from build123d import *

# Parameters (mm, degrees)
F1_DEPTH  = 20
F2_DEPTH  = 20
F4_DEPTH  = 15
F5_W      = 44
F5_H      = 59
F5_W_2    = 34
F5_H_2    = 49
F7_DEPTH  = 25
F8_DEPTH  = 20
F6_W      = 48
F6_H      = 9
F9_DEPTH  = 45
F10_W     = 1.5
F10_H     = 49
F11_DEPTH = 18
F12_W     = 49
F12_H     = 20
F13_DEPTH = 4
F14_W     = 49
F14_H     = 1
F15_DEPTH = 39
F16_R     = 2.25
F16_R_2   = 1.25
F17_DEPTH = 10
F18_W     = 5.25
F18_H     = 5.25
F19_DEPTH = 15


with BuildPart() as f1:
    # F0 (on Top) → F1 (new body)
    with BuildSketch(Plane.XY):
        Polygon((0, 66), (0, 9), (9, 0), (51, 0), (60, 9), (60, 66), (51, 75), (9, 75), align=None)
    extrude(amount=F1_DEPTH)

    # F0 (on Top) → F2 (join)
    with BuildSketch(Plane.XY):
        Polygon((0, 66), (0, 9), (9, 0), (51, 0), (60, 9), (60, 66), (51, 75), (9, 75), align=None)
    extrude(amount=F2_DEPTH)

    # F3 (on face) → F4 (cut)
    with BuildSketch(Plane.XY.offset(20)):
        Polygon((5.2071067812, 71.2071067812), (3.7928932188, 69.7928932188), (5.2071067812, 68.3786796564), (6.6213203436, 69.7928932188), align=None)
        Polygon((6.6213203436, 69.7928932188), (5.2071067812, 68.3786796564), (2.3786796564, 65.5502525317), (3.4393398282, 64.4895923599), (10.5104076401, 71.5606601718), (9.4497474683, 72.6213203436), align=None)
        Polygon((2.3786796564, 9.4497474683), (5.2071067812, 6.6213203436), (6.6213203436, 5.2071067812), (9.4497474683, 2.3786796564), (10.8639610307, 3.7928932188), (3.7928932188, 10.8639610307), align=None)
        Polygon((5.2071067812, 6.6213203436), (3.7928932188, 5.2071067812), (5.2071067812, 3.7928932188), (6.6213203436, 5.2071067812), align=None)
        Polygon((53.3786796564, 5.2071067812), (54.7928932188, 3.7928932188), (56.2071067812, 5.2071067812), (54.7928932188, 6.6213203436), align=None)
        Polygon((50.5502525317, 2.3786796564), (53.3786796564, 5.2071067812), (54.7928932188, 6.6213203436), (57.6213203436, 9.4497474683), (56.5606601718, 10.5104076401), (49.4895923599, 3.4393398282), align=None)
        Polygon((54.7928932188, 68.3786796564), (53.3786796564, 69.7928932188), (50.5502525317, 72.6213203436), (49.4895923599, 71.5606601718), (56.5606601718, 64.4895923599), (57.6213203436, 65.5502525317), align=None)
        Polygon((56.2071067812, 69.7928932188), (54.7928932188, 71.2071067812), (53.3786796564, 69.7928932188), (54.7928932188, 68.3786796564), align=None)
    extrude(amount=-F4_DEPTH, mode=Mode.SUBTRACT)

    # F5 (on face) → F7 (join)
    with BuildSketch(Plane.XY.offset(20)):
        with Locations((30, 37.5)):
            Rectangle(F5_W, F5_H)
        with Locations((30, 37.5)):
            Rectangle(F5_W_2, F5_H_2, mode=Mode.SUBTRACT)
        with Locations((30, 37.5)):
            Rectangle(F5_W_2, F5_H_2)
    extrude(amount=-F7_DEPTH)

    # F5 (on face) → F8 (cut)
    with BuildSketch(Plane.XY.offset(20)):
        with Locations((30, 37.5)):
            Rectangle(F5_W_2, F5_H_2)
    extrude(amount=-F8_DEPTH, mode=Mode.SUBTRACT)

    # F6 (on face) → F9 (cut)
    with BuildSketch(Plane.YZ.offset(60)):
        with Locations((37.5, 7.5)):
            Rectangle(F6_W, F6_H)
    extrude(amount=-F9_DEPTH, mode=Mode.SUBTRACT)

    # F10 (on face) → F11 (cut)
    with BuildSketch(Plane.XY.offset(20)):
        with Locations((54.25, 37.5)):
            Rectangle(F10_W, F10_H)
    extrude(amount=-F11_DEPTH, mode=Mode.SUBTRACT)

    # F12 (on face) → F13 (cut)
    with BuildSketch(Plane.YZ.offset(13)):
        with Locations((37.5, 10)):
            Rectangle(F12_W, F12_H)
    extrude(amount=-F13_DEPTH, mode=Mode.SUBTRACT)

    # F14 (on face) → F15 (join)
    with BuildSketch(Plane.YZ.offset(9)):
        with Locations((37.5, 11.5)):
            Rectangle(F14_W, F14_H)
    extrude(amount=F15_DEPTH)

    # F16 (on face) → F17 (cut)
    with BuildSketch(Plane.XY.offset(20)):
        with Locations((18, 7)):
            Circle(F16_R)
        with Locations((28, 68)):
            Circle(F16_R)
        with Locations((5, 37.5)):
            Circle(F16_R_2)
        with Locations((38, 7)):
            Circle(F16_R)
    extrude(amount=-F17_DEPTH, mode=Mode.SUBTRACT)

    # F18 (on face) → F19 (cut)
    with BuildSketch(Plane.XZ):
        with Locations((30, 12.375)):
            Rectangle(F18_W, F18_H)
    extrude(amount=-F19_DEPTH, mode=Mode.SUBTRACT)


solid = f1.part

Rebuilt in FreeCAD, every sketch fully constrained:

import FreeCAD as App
import Part
import Sketcher
Q = App.Units.Quantity

doc = App.newDocument("Part")
params = doc.addObject("Spreadsheet::Sheet", "Params")
for row, (alias, value) in enumerate([
    ("sketch1_width", "42 mm"),
    ("sketch1_height", "57 mm"),
    ("pad1_length", "20 mm"),
    ("sketch2_width", "42 mm"),
    ("sketch2_height", "57 mm"),
    ("pad2_length", "20 mm"),
    ("sketch3_length", "2 mm"),
    ("sketch3_length2", "1.5 mm"),
    ("pocket1_length", "15 mm"),
    ("sketch4_width", "44 mm"),
    ("sketch4_height", "59 mm"),
    ("pad3_length", "25 mm"),
    ("sketch5_width", "34 mm"),
    ("sketch5_height", "49 mm"),
    ("pocket2_length", "20 mm"),
    ("sketch6_width", "48 mm"),
    ("sketch6_height", "9 mm"),
    ("pocket3_length", "45 mm"),
    ("sketch7_height", "49 mm"),
    ("sketch7_width", "1.5 mm"),
    ("pocket4_length", "18 mm"),
    ("sketch8_width", "49 mm"),
    ("sketch8_height", "20 mm"),
    ("pocket5_length", "4 mm"),
    ("sketch9_width", "49 mm"),
    ("sketch9_height", "1 mm"),
    ("pad4_length", "39 mm"),
    ("sketch10_diameter", "4.5 mm"),
    ("sketch10_diameter2", "2.5 mm"),
    ("pocket6_length", "10 mm"),
    ("sketch11_width", "5.25 mm"),
    ("pocket7_length", "15 mm"),
], start=1):
    params.set(f"A{row}", alias)
    params.set(f"B{row}", "=" + value)
    params.setAlias(f"B{row}", alias)

body = doc.addObject("PartDesign::Body", "Body")

# Sketch on XY plane
sketch1 = doc.addObject("Sketcher::SketchObject", "Sketch")
body.addObject(sketch1)
sketch1.AttachmentSupport = (doc.XY_Plane, [""])
sketch1.MapMode = "FlatFace"
sketch1.addGeometry(Part.LineSegment(App.Vector(0, 66, 0), App.Vector(0, 9, 0)), False)
sketch1.addGeometry(Part.LineSegment(App.Vector(0, 9, 0), App.Vector(9, 0, 0)), False)
sketch1.addGeometry(Part.LineSegment(App.Vector(9, 0, 0), App.Vector(51, 0, 0)), False)
sketch1.addGeometry(Part.LineSegment(App.Vector(51, 0, 0), App.Vector(60, 9, 0)), False)
sketch1.addGeometry(Part.LineSegment(App.Vector(60, 9, 0), App.Vector(60, 66, 0)), False)
sketch1.addGeometry(Part.LineSegment(App.Vector(60, 66, 0), App.Vector(51, 75, 0)), False)
sketch1.addGeometry(Part.LineSegment(App.Vector(51, 75, 0), App.Vector(9, 75, 0)), False)
sketch1.addGeometry(Part.LineSegment(App.Vector(9, 75, 0), App.Vector(0, 66, 0)), False)
sketch1.addConstraint(Sketcher.Constraint("Coincident", 0, 2, 1, 1))
sketch1.addConstraint(Sketcher.Constraint("Coincident", 1, 2, 2, 1))
sketch1.addConstraint(Sketcher.Constraint("Coincident", 2, 2, 3, 1))
sketch1.addConstraint(Sketcher.Constraint("Coincident", 3, 2, 4, 1))
sketch1.addConstraint(Sketcher.Constraint("Coincident", 4, 2, 5, 1))
sketch1.addConstraint(Sketcher.Constraint("Coincident", 5, 2, 6, 1))
sketch1.addConstraint(Sketcher.Constraint("Coincident", 6, 2, 7, 1))
sketch1.addConstraint(Sketcher.Constraint("Coincident", 7, 2, 0, 1))
sketch1.addConstraint(Sketcher.Constraint("Vertical", 0))
sketch1.addConstraint(Sketcher.Constraint("Horizontal", 2))
sketch1.addConstraint(Sketcher.Constraint("Vertical", 4))
sketch1.addConstraint(Sketcher.Constraint("Horizontal", 6))
sketch1.addConstraint(Sketcher.Constraint("PointOnObject", 0, 2, -2))
sketch1.addConstraint(Sketcher.Constraint("PointOnObject", 1, 2, -1))
sketch1.addConstraint(Sketcher.Constraint("Perpendicular", 1, 3))
sketch1.addConstraint(Sketcher.Constraint("Perpendicular", 3, 5))
sketch1.addConstraint(Sketcher.Constraint("Perpendicular", 5, 7))
sketch1.addConstraint(Sketcher.Constraint("Horizontal", 0, 2, 3, 2))
sketch1.addConstraint(Sketcher.Constraint("Horizontal", 4, 2, 7, 2))
sketch1.addConstraint(Sketcher.Constraint("Vertical", 2, 2, 5, 2))
sketch1.addConstraint(Sketcher.Constraint("Vertical", 1, 2, 6, 2))
sketch1.addConstraint(Sketcher.Constraint("DistanceX", 2, 1, 2, 2, Q("42 mm")))
sketch1.addConstraint(Sketcher.Constraint("DistanceY", 0, 2, 0, 1, Q("57 mm")))
sketch1.addConstraint(Sketcher.Constraint("DistanceY", -1, 1, 0, 2, Q("9 mm")))
sketch1.setExpression("Constraints[21]", "Params.sketch1_width")
sketch1.setExpression("Constraints[22]", "Params.sketch1_height")
pad1 = doc.addObject("PartDesign::Pad", "Pad")
body.addObject(pad1)
pad1.Profile = sketch1
pad1.setExpression("Length", "Params.pad1_length")

# Sketch on XY plane
sketch2 = doc.addObject("Sketcher::SketchObject", "Sketch001")
body.addObject(sketch2)
sketch2.AttachmentSupport = (doc.XY_Plane, [""])
sketch2.MapMode = "FlatFace"
sketch2.addGeometry(Part.LineSegment(App.Vector(0, 66, 0), App.Vector(0, 9, 0)), False)
sketch2.addGeometry(Part.LineSegment(App.Vector(0, 9, 0), App.Vector(9, 0, 0)), False)
sketch2.addGeometry(Part.LineSegment(App.Vector(9, 0, 0), App.Vector(51, 0, 0)), False)
sketch2.addGeometry(Part.LineSegment(App.Vector(51, 0, 0), App.Vector(60, 9, 0)), False)
sketch2.addGeometry(Part.LineSegment(App.Vector(60, 9, 0), App.Vector(60, 66, 0)), False)
sketch2.addGeometry(Part.LineSegment(App.Vector(60, 66, 0), App.Vector(51, 75, 0)), False)
sketch2.addGeometry(Part.LineSegment(App.Vector(51, 75, 0), App.Vector(9, 75, 0)), False)
sketch2.addGeometry(Part.LineSegment(App.Vector(9, 75, 0), App.Vector(0, 66, 0)), False)
sketch2.addConstraint(Sketcher.Constraint("Coincident", 0, 2, 1, 1))
sketch2.addConstraint(Sketcher.Constraint("Coincident", 1, 2, 2, 1))
sketch2.addConstraint(Sketcher.Constraint("Coincident", 2, 2, 3, 1))
sketch2.addConstraint(Sketcher.Constraint("Coincident", 3, 2, 4, 1))
sketch2.addConstraint(Sketcher.Constraint("Coincident", 4, 2, 5, 1))
sketch2.addConstraint(Sketcher.Constraint("Coincident", 5, 2, 6, 1))
sketch2.addConstraint(Sketcher.Constraint("Coincident", 6, 2, 7, 1))
sketch2.addConstraint(Sketcher.Constraint("Coincident", 7, 2, 0, 1))
sketch2.addConstraint(Sketcher.Constraint("Vertical", 0))
sketch2.addConstraint(Sketcher.Constraint("Horizontal", 2))
sketch2.addConstraint(Sketcher.Constraint("Vertical", 4))
sketch2.addConstraint(Sketcher.Constraint("Horizontal", 6))
sketch2.addConstraint(Sketcher.Constraint("PointOnObject", 0, 2, -2))
sketch2.addConstraint(Sketcher.Constraint("PointOnObject", 1, 2, -1))
sketch2.addConstraint(Sketcher.Constraint("Perpendicular", 1, 3))
sketch2.addConstraint(Sketcher.Constraint("Perpendicular", 3, 5))
sketch2.addConstraint(Sketcher.Constraint("Perpendicular", 5, 7))
sketch2.addConstraint(Sketcher.Constraint("Horizontal", 0, 2, 3, 2))
sketch2.addConstraint(Sketcher.Constraint("Horizontal", 4, 2, 7, 2))
sketch2.addConstraint(Sketcher.Constraint("Vertical", 2, 2, 5, 2))
sketch2.addConstraint(Sketcher.Constraint("Vertical", 1, 2, 6, 2))
sketch2.addConstraint(Sketcher.Constraint("DistanceX", 2, 1, 2, 2, Q("42 mm")))
sketch2.addConstraint(Sketcher.Constraint("DistanceY", 0, 2, 0, 1, Q("57 mm")))
sketch2.addConstraint(Sketcher.Constraint("DistanceY", -1, 1, 0, 2, Q("9 mm")))
sketch2.setExpression("Constraints[21]", "Params.sketch2_width")
sketch2.setExpression("Constraints[22]", "Params.sketch2_height")
pad2 = doc.addObject("PartDesign::Pad", "Pad001")
body.addObject(pad2)
pad2.Profile = sketch2
pad2.setExpression("Length", "Params.pad2_length")

# Sketch on XY plane
sketch3 = doc.addObject("Sketcher::SketchObject", "Sketch002")
body.addObject(sketch3)
sketch3.AttachmentSupport = (doc.XY_Plane, [""])
sketch3.MapMode = "FlatFace"
sketch3.AttachmentOffset = App.Placement(App.Vector(0, 0, 20), App.Rotation())
sketch3.addGeometry(Part.LineSegment(App.Vector(5.2, 71.2, 0), App.Vector(3.8, 69.8, 0)), False)
sketch3.addGeometry(Part.LineSegment(App.Vector(3.8, 69.8, 0), App.Vector(5.2, 68.4, 0)), False)
sketch3.addGeometry(Part.LineSegment(App.Vector(5.2, 68.4, 0), App.Vector(2.4, 65.6, 0)), False)
sketch3.addGeometry(Part.LineSegment(App.Vector(2.4, 65.6, 0), App.Vector(3.4, 64.5, 0)), False)
sketch3.addGeometry(Part.LineSegment(App.Vector(3.4, 64.5, 0), App.Vector(10.5, 71.6, 0)), False)
sketch3.addGeometry(Part.LineSegment(App.Vector(10.5, 71.6, 0), App.Vector(9.4, 72.6, 0)), False)
sketch3.addGeometry(Part.LineSegment(App.Vector(9.4, 72.6, 0), App.Vector(6.6, 69.8, 0)), False)
sketch3.addGeometry(Part.LineSegment(App.Vector(6.6, 69.8, 0), App.Vector(5.2, 71.2, 0)), False)
sketch3.addGeometry(Part.LineSegment(App.Vector(2.4, 9.4, 0), App.Vector(5.2, 6.6, 0)), False)
sketch3.addGeometry(Part.LineSegment(App.Vector(5.2, 6.6, 0), App.Vector(3.8, 5.2, 0)), False)
sketch3.addGeometry(Part.LineSegment(App.Vector(3.8, 5.2, 0), App.Vector(5.2, 3.8, 0)), False)
sketch3.addGeometry(Part.LineSegment(App.Vector(5.2, 3.8, 0), App.Vector(6.6, 5.2, 0)), False)
sketch3.addGeometry(Part.LineSegment(App.Vector(6.6, 5.2, 0), App.Vector(9.4, 2.4, 0)), False)
sketch3.addGeometry(Part.LineSegment(App.Vector(9.4, 2.4, 0), App.Vector(10.9, 3.8, 0)), False)
sketch3.addGeometry(Part.LineSegment(App.Vector(10.9, 3.8, 0), App.Vector(3.8, 10.9, 0)), False)
sketch3.addGeometry(Part.LineSegment(App.Vector(3.8, 10.9, 0), App.Vector(2.4, 9.4, 0)), False)
sketch3.addGeometry(Part.LineSegment(App.Vector(53.4, 5.2, 0), App.Vector(54.8, 3.8, 0)), False)
sketch3.addGeometry(Part.LineSegment(App.Vector(54.8, 3.8, 0), App.Vector(56.2, 5.2, 0)), False)
sketch3.addGeometry(Part.LineSegment(App.Vector(56.2, 5.2, 0), App.Vector(54.8, 6.6, 0)), False)
sketch3.addGeometry(Part.LineSegment(App.Vector(54.8, 6.6, 0), App.Vector(57.6, 9.4, 0)), False)
sketch3.addGeometry(Part.LineSegment(App.Vector(57.6, 9.4, 0), App.Vector(56.6, 10.5, 0)), False)
sketch3.addGeometry(Part.LineSegment(App.Vector(56.6, 10.5, 0), App.Vector(49.5, 3.4, 0)), False)
sketch3.addGeometry(Part.LineSegment(App.Vector(49.5, 3.4, 0), App.Vector(50.6, 2.4, 0)), False)
sketch3.addGeometry(Part.LineSegment(App.Vector(50.6, 2.4, 0), App.Vector(53.4, 5.2, 0)), False)
sketch3.addGeometry(Part.LineSegment(App.Vector(53.4, 69.8, 0), App.Vector(50.6, 72.6, 0)), False)
sketch3.addGeometry(Part.LineSegment(App.Vector(50.6, 72.6, 0), App.Vector(49.5, 71.6, 0)), False)
sketch3.addGeometry(Part.LineSegment(App.Vector(49.5, 71.6, 0), App.Vector(56.6, 64.5, 0)), False)
sketch3.addGeometry(Part.LineSegment(App.Vector(56.6, 64.5, 0), App.Vector(57.6, 65.6, 0)), False)
sketch3.addGeometry(Part.LineSegment(App.Vector(57.6, 65.6, 0), App.Vector(54.8, 68.4, 0)), False)
sketch3.addGeometry(Part.LineSegment(App.Vector(54.8, 68.4, 0), App.Vector(56.2, 69.8, 0)), False)
sketch3.addGeometry(Part.LineSegment(App.Vector(56.2, 69.8, 0), App.Vector(54.8, 71.2, 0)), False)
sketch3.addGeometry(Part.LineSegment(App.Vector(54.8, 71.2, 0), App.Vector(53.4, 69.8, 0)), False)
sketch3.addConstraint(Sketcher.Constraint("Coincident", 0, 2, 1, 1))
sketch3.addConstraint(Sketcher.Constraint("Coincident", 1, 2, 2, 1))
sketch3.addConstraint(Sketcher.Constraint("Coincident", 2, 2, 3, 1))
sketch3.addConstraint(Sketcher.Constraint("Coincident", 3, 2, 4, 1))
sketch3.addConstraint(Sketcher.Constraint("Coincident", 4, 2, 5, 1))
sketch3.addConstraint(Sketcher.Constraint("Coincident", 5, 2, 6, 1))
sketch3.addConstraint(Sketcher.Constraint("Coincident", 6, 2, 7, 1))
sketch3.addConstraint(Sketcher.Constraint("Coincident", 7, 2, 0, 1))
sketch3.addConstraint(Sketcher.Constraint("Coincident", 8, 2, 9, 1))
sketch3.addConstraint(Sketcher.Constraint("Coincident", 9, 2, 10, 1))
sketch3.addConstraint(Sketcher.Constraint("Coincident", 10, 2, 11, 1))
sketch3.addConstraint(Sketcher.Constraint("Coincident", 11, 2, 12, 1))
sketch3.addConstraint(Sketcher.Constraint("Coincident", 12, 2, 13, 1))
sketch3.addConstraint(Sketcher.Constraint("Coincident", 13, 2, 14, 1))
sketch3.addConstraint(Sketcher.Constraint("Coincident", 14, 2, 15, 1))
sketch3.addConstraint(Sketcher.Constraint("Coincident", 15, 2, 8, 1))
sketch3.addConstraint(Sketcher.Constraint("Coincident", 16, 2, 17, 1))
sketch3.addConstraint(Sketcher.Constraint("Coincident", 17, 2, 18, 1))
sketch3.addConstraint(Sketcher.Constraint("Coincident", 18, 2, 19, 1))
sketch3.addConstraint(Sketcher.Constraint("Coincident", 19, 2, 20, 1))
sketch3.addConstraint(Sketcher.Constraint("Coincident", 20, 2, 21, 1))
sketch3.addConstraint(Sketcher.Constraint("Coincident", 21, 2, 22, 1))
sketch3.addConstraint(Sketcher.Constraint("Coincident", 22, 2, 23, 1))
sketch3.addConstraint(Sketcher.Constraint("Coincident", 23, 2, 16, 1))
sketch3.addConstraint(Sketcher.Constraint("Coincident", 24, 2, 25, 1))
sketch3.addConstraint(Sketcher.Constraint("Coincident", 25, 2, 26, 1))
sketch3.addConstraint(Sketcher.Constraint("Coincident", 26, 2, 27, 1))
sketch3.addConstraint(Sketcher.Constraint("Coincident", 27, 2, 28, 1))
sketch3.addConstraint(Sketcher.Constraint("Coincident", 28, 2, 29, 1))
sketch3.addConstraint(Sketcher.Constraint("Coincident", 29, 2, 30, 1))
sketch3.addConstraint(Sketcher.Constraint("Coincident", 30, 2, 31, 1))
sketch3.addConstraint(Sketcher.Constraint("Coincident", 31, 2, 24, 1))
sketch3.addConstraint(Sketcher.Constraint("Perpendicular", 0, 1))
sketch3.addConstraint(Sketcher.Constraint("Perpendicular", 1, 2))
sketch3.addConstraint(Sketcher.Constraint("Perpendicular", 2, 3))
sketch3.addConstraint(Sketcher.Constraint("Perpendicular", 3, 4))
sketch3.addConstraint(Sketcher.Constraint("Perpendicular", 4, 5))
sketch3.addConstraint(Sketcher.Constraint("Perpendicular", 5, 6))
sketch3.addConstraint(Sketcher.Constraint("Perpendicular", 6, 7))
sketch3.addConstraint(Sketcher.Constraint("Parallel", 7, 8))
sketch3.addConstraint(Sketcher.Constraint("Perpendicular", 8, 9))
sketch3.addConstraint(Sketcher.Constraint("Perpendicular", 9, 10))
sketch3.addConstraint(Sketcher.Constraint("Perpendicular", 10, 11))
sketch3.addConstraint(Sketcher.Constraint("Perpendicular", 11, 12))
sketch3.addConstraint(Sketcher.Constraint("Perpendicular", 12, 13))
sketch3.addConstraint(Sketcher.Constraint("Perpendicular", 13, 14))
sketch3.addConstraint(Sketcher.Constraint("Perpendicular", 14, 15))
sketch3.addConstraint(Sketcher.Constraint("Perpendicular", 15, 16))
sketch3.addConstraint(Sketcher.Constraint("Perpendicular", 16, 17))
sketch3.addConstraint(Sketcher.Constraint("Perpendicular", 17, 18))
sketch3.addConstraint(Sketcher.Constraint("Perpendicular", 18, 19))
sketch3.addConstraint(Sketcher.Constraint("Perpendicular", 19, 20))
sketch3.addConstraint(Sketcher.Constraint("Perpendicular", 20, 21))
sketch3.addConstraint(Sketcher.Constraint("Perpendicular", 21, 22))
sketch3.addConstraint(Sketcher.Constraint("Perpendicular", 22, 23))
sketch3.addConstraint(Sketcher.Constraint("Perpendicular", 23, 24))
sketch3.addConstraint(Sketcher.Constraint("Perpendicular", 24, 25))
sketch3.addConstraint(Sketcher.Constraint("Perpendicular", 25, 26))
sketch3.addConstraint(Sketcher.Constraint("Perpendicular", 26, 27))
sketch3.addConstraint(Sketcher.Constraint("Perpendicular", 27, 28))
sketch3.addConstraint(Sketcher.Constraint("Perpendicular", 28, 29))
sketch3.addConstraint(Sketcher.Constraint("Perpendicular", 29, 30))
sketch3.addConstraint(Sketcher.Constraint("Perpendicular", 30, 31))
sketch3.addConstraint(Sketcher.Constraint("Horizontal", 0, 2, 6, 2))
sketch3.addConstraint(Sketcher.Constraint("Horizontal", 9, 2, 11, 2))
sketch3.addConstraint(Sketcher.Constraint("Horizontal", 10, 2, 13, 2))
sketch3.addConstraint(Sketcher.Constraint("Horizontal", 13, 2, 16, 2))
sketch3.addConstraint(Sketcher.Constraint("Horizontal", 11, 2, 17, 2))
sketch3.addConstraint(Sketcher.Constraint("Horizontal", 8, 2, 18, 2))
sketch3.addConstraint(Sketcher.Constraint("Horizontal", 15, 2, 19, 2))
sketch3.addConstraint(Sketcher.Constraint("Horizontal", 12, 2, 22, 2))
sketch3.addConstraint(Sketcher.Constraint("Horizontal", 17, 2, 23, 2))
sketch3.addConstraint(Sketcher.Constraint("Horizontal", 5, 2, 24, 2))
sketch3.addConstraint(Sketcher.Constraint("Horizontal", 4, 2, 25, 2))
sketch3.addConstraint(Sketcher.Constraint("Horizontal", 3, 2, 26, 2))
sketch3.addConstraint(Sketcher.Constraint("Horizontal", 2, 2, 27, 2))
sketch3.addConstraint(Sketcher.Constraint("Horizontal", 1, 2, 28, 2))
sketch3.addConstraint(Sketcher.Constraint("Horizontal", 6, 2, 29, 2))
sketch3.addConstraint(Sketcher.Constraint("Horizontal", 7, 2, 30, 2))
sketch3.addConstraint(Sketcher.Constraint("Vertical", 1, 2, 7, 2))
sketch3.addConstraint(Sketcher.Constraint("Vertical", 7, 2, 8, 2))
sketch3.addConstraint(Sketcher.Constraint("Vertical", 0, 2, 9, 2))
sketch3.addConstraint(Sketcher.Constraint("Vertical", 8, 2, 10, 2))
sketch3.addConstraint(Sketcher.Constraint("Vertical", 6, 2, 11, 2))
sketch3.addConstraint(Sketcher.Constraint("Vertical", 5, 2, 12, 2))
sketch3.addConstraint(Sketcher.Constraint("Vertical", 9, 2, 14, 2))
sketch3.addConstraint(Sketcher.Constraint("Vertical", 2, 2, 15, 2))
sketch3.addConstraint(Sketcher.Constraint("Vertical", 22, 2, 24, 2))
sketch3.addConstraint(Sketcher.Constraint("Vertical", 21, 2, 25, 2))
sketch3.addConstraint(Sketcher.Constraint("Equal", 11, 13))
sketch3.addConstraint(Sketcher.Constraint("Distance", 0, Q("2 mm")))
sketch3.addConstraint(Sketcher.Constraint("DistanceX", 10, 2, 17, 2, Q("51 mm")))
sketch3.addConstraint(Sketcher.Constraint("Distance", 3, Q("1.5 mm")))
sketch3.addConstraint(Sketcher.Constraint("DistanceY", 10, 2, 3, 2, Q("60.696699 mm")))
sketch3.addConstraint(Sketcher.Constraint("DistanceY", -1, 1, 1, 2, Q("68.37868 mm")))
sketch3.addConstraint(Sketcher.Constraint("DistanceX", -1, 1, 2, 2, Q("2.37868 mm")))
sketch3.setExpression("Constraints[90]", "Params.sketch3_length")
sketch3.setExpression("Constraints[92]", "Params.sketch3_length2")
pocket1 = doc.addObject("PartDesign::Pocket", "Pocket")
body.addObject(pocket1)
pocket1.Profile = sketch3
pocket1.setExpression("Length", "Params.pocket1_length")

# Sketch on XY plane
sketch4 = doc.addObject("Sketcher::SketchObject", "Sketch003")
body.addObject(sketch4)
sketch4.AttachmentSupport = (doc.XY_Plane, [""])
sketch4.MapMode = "FlatFace"
sketch4.AttachmentOffset = App.Placement(App.Vector(0, 0, 20), App.Rotation())
sketch4.addGeometry(Part.LineSegment(App.Vector(8, 67, 0), App.Vector(8, 8, 0)), False)
sketch4.addGeometry(Part.LineSegment(App.Vector(8, 8, 0), App.Vector(52, 8, 0)), False)
sketch4.addGeometry(Part.LineSegment(App.Vector(52, 8, 0), App.Vector(52, 67, 0)), False)
sketch4.addGeometry(Part.LineSegment(App.Vector(52, 67, 0), App.Vector(8, 67, 0)), False)
sketch4.addConstraint(Sketcher.Constraint("Coincident", 0, 2, 1, 1))
sketch4.addConstraint(Sketcher.Constraint("Coincident", 1, 2, 2, 1))
sketch4.addConstraint(Sketcher.Constraint("Coincident", 2, 2, 3, 1))
sketch4.addConstraint(Sketcher.Constraint("Coincident", 3, 2, 0, 1))
sketch4.addConstraint(Sketcher.Constraint("Vertical", 0))
sketch4.addConstraint(Sketcher.Constraint("Horizontal", 1))
sketch4.addConstraint(Sketcher.Constraint("Vertical", 2))
sketch4.addConstraint(Sketcher.Constraint("Horizontal", 3))
sketch4.addConstraint(Sketcher.Constraint("DistanceX", 1, 1, 1, 2, Q("44 mm")))
sketch4.addConstraint(Sketcher.Constraint("DistanceY", 0, 2, 0, 1, Q("59 mm")))
sketch4.addConstraint(Sketcher.Constraint("DistanceX", -1, 1, 0, 2, Q("8 mm")))
sketch4.addConstraint(Sketcher.Constraint("DistanceY", -1, 1, 0, 2, Q("8 mm")))
sketch4.setExpression("Constraints[8]", "Params.sketch4_width")
sketch4.setExpression("Constraints[9]", "Params.sketch4_height")
pad3 = doc.addObject("PartDesign::Pad", "Pad002")
body.addObject(pad3)
pad3.Profile = sketch4
pad3.setExpression("Length", "Params.pad3_length")
pad3.Reversed = True

# Sketch on XY plane
sketch5 = doc.addObject("Sketcher::SketchObject", "Sketch004")
body.addObject(sketch5)
sketch5.AttachmentSupport = (doc.XY_Plane, [""])
sketch5.MapMode = "FlatFace"
sketch5.AttachmentOffset = App.Placement(App.Vector(0, 0, 20), App.Rotation())
sketch5.addGeometry(Part.LineSegment(App.Vector(13, 62, 0), App.Vector(13, 13, 0)), False)
sketch5.addGeometry(Part.LineSegment(App.Vector(13, 13, 0), App.Vector(47, 13, 0)), False)
sketch5.addGeometry(Part.LineSegment(App.Vector(47, 13, 0), App.Vector(47, 62, 0)), False)
sketch5.addGeometry(Part.LineSegment(App.Vector(47, 62, 0), App.Vector(13, 62, 0)), False)
sketch5.addConstraint(Sketcher.Constraint("Coincident", 0, 2, 1, 1))
sketch5.addConstraint(Sketcher.Constraint("Coincident", 1, 2, 2, 1))
sketch5.addConstraint(Sketcher.Constraint("Coincident", 2, 2, 3, 1))
sketch5.addConstraint(Sketcher.Constraint("Coincident", 3, 2, 0, 1))
sketch5.addConstraint(Sketcher.Constraint("Vertical", 0))
sketch5.addConstraint(Sketcher.Constraint("Horizontal", 1))
sketch5.addConstraint(Sketcher.Constraint("Vertical", 2))
sketch5.addConstraint(Sketcher.Constraint("Horizontal", 3))
sketch5.addConstraint(Sketcher.Constraint("DistanceX", 1, 1, 1, 2, Q("34 mm")))
sketch5.addConstraint(Sketcher.Constraint("DistanceY", 0, 2, 0, 1, Q("49 mm")))
sketch5.addConstraint(Sketcher.Constraint("DistanceX", -1, 1, 0, 2, Q("13 mm")))
sketch5.addConstraint(Sketcher.Constraint("DistanceY", -1, 1, 0, 2, Q("13 mm")))
sketch5.setExpression("Constraints[8]", "Params.sketch5_width")
sketch5.setExpression("Constraints[9]", "Params.sketch5_height")
pocket2 = doc.addObject("PartDesign::Pocket", "Pocket001")
body.addObject(pocket2)
pocket2.Profile = sketch5
pocket2.setExpression("Length", "Params.pocket2_length")

# Sketch on YZ plane
sketch6 = doc.addObject("Sketcher::SketchObject", "Sketch005")
body.addObject(sketch6)
sketch6.AttachmentSupport = (doc.YZ_Plane, [""])
sketch6.MapMode = "FlatFace"
sketch6.AttachmentOffset = App.Placement(App.Vector(0, 0, 60), App.Rotation())
sketch6.addGeometry(Part.LineSegment(App.Vector(14, 12, 0), App.Vector(14, 3, 0)), False)
sketch6.addGeometry(Part.LineSegment(App.Vector(14, 3, 0), App.Vector(62, 3, 0)), False)
sketch6.addGeometry(Part.LineSegment(App.Vector(62, 3, 0), App.Vector(62, 12, 0)), False)
sketch6.addGeometry(Part.LineSegment(App.Vector(62, 12, 0), App.Vector(14, 12, 0)), False)
sketch6.addConstraint(Sketcher.Constraint("Coincident", 0, 2, 1, 1))
sketch6.addConstraint(Sketcher.Constraint("Coincident", 1, 2, 2, 1))
sketch6.addConstraint(Sketcher.Constraint("Coincident", 2, 2, 3, 1))
sketch6.addConstraint(Sketcher.Constraint("Coincident", 3, 2, 0, 1))
sketch6.addConstraint(Sketcher.Constraint("Vertical", 0))
sketch6.addConstraint(Sketcher.Constraint("Horizontal", 1))
sketch6.addConstraint(Sketcher.Constraint("Vertical", 2))
sketch6.addConstraint(Sketcher.Constraint("Horizontal", 3))
sketch6.addConstraint(Sketcher.Constraint("DistanceX", 1, 1, 1, 2, Q("48 mm")))
sketch6.addConstraint(Sketcher.Constraint("DistanceY", 0, 2, 0, 1, Q("9 mm")))
sketch6.addConstraint(Sketcher.Constraint("DistanceY", -1, 1, 0, 2, Q("3 mm")))
sketch6.addConstraint(Sketcher.Constraint("DistanceX", -1, 1, 0, 2, Q("13.5 mm")))
sketch6.setExpression("Constraints[8]", "Params.sketch6_width")
sketch6.setExpression("Constraints[9]", "Params.sketch6_height")
pocket3 = doc.addObject("PartDesign::Pocket", "Pocket002")
body.addObject(pocket3)
pocket3.Profile = sketch6
pocket3.setExpression("Length", "Params.pocket3_length")

# Sketch on XY plane
sketch7 = doc.addObject("Sketcher::SketchObject", "Sketch006")
body.addObject(sketch7)
sketch7.AttachmentSupport = (doc.XY_Plane, [""])
sketch7.MapMode = "FlatFace"
sketch7.AttachmentOffset = App.Placement(App.Vector(0, 0, 20), App.Rotation())
sketch7.addGeometry(Part.LineSegment(App.Vector(53.5, 62, 0), App.Vector(53.5, 13, 0)), False)
sketch7.addGeometry(Part.LineSegment(App.Vector(53.5, 13, 0), App.Vector(55, 13, 0)), False)
sketch7.addGeometry(Part.LineSegment(App.Vector(55, 13, 0), App.Vector(55, 62, 0)), False)
sketch7.addGeometry(Part.LineSegment(App.Vector(55, 62, 0), App.Vector(53.5, 62, 0)), False)
sketch7.addConstraint(Sketcher.Constraint("Coincident", 0, 2, 1, 1))
sketch7.addConstraint(Sketcher.Constraint("Coincident", 1, 2, 2, 1))
sketch7.addConstraint(Sketcher.Constraint("Coincident", 2, 2, 3, 1))
sketch7.addConstraint(Sketcher.Constraint("Coincident", 3, 2, 0, 1))
sketch7.addConstraint(Sketcher.Constraint("Vertical", 0))
sketch7.addConstraint(Sketcher.Constraint("Horizontal", 1))
sketch7.addConstraint(Sketcher.Constraint("Vertical", 2))
sketch7.addConstraint(Sketcher.Constraint("Horizontal", 3))
sketch7.addConstraint(Sketcher.Constraint("DistanceY", 0, 2, 0, 1, Q("49 mm")))
sketch7.addConstraint(Sketcher.Constraint("DistanceX", 1, 1, 1, 2, Q("1.5 mm")))
sketch7.addConstraint(Sketcher.Constraint("DistanceY", -1, 1, 0, 2, Q("13 mm")))
sketch7.addConstraint(Sketcher.Constraint("DistanceX", -1, 1, 1, 2, Q("55 mm")))
sketch7.setExpression("Constraints[8]", "Params.sketch7_height")
sketch7.setExpression("Constraints[9]", "Params.sketch7_width")
pocket4 = doc.addObject("PartDesign::Pocket", "Pocket003")
body.addObject(pocket4)
pocket4.Profile = sketch7
pocket4.setExpression("Length", "Params.pocket4_length")

# Sketch on YZ plane
sketch8 = doc.addObject("Sketcher::SketchObject", "Sketch007")
body.addObject(sketch8)
sketch8.AttachmentSupport = (doc.YZ_Plane, [""])
sketch8.MapMode = "FlatFace"
sketch8.AttachmentOffset = App.Placement(App.Vector(0, 0, 13), App.Rotation())
sketch8.addGeometry(Part.LineSegment(App.Vector(13, 20, 0), App.Vector(13, 0, 0)), False)
sketch8.addGeometry(Part.LineSegment(App.Vector(13, 0, 0), App.Vector(62, 0, 0)), False)
sketch8.addGeometry(Part.LineSegment(App.Vector(62, 0, 0), App.Vector(62, 20, 0)), False)
sketch8.addGeometry(Part.LineSegment(App.Vector(62, 20, 0), App.Vector(13, 20, 0)), False)
sketch8.addConstraint(Sketcher.Constraint("Coincident", 0, 2, 1, 1))
sketch8.addConstraint(Sketcher.Constraint("Coincident", 1, 2, 2, 1))
sketch8.addConstraint(Sketcher.Constraint("Coincident", 2, 2, 3, 1))
sketch8.addConstraint(Sketcher.Constraint("Coincident", 3, 2, 0, 1))
sketch8.addConstraint(Sketcher.Constraint("Vertical", 0))
sketch8.addConstraint(Sketcher.Constraint("Horizontal", 1))
sketch8.addConstraint(Sketcher.Constraint("Vertical", 2))
sketch8.addConstraint(Sketcher.Constraint("Horizontal", 3))
sketch8.addConstraint(Sketcher.Constraint("PointOnObject", 0, 2, -1))
sketch8.addConstraint(Sketcher.Constraint("DistanceX", 1, 1, 1, 2, Q("49 mm")))
sketch8.addConstraint(Sketcher.Constraint("DistanceY", 0, 2, 0, 1, Q("20 mm")))
sketch8.addConstraint(Sketcher.Constraint("DistanceX", -1, 1, 0, 2, Q("13 mm")))
sketch8.setExpression("Constraints[9]", "Params.sketch8_width")
sketch8.setExpression("Constraints[10]", "Params.sketch8_height")
pocket5 = doc.addObject("PartDesign::Pocket", "Pocket004")
body.addObject(pocket5)
pocket5.Profile = sketch8
pocket5.setExpression("Length", "Params.pocket5_length")

# Sketch on YZ plane
sketch9 = doc.addObject("Sketcher::SketchObject", "Sketch008")
body.addObject(sketch9)
sketch9.AttachmentSupport = (doc.YZ_Plane, [""])
sketch9.MapMode = "FlatFace"
sketch9.AttachmentOffset = App.Placement(App.Vector(0, 0, 9), App.Rotation())
sketch9.addGeometry(Part.LineSegment(App.Vector(13, 12, 0), App.Vector(13, 11, 0)), False)
sketch9.addGeometry(Part.LineSegment(App.Vector(13, 11, 0), App.Vector(62, 11, 0)), False)
sketch9.addGeometry(Part.LineSegment(App.Vector(62, 11, 0), App.Vector(62, 12, 0)), False)
sketch9.addGeometry(Part.LineSegment(App.Vector(62, 12, 0), App.Vector(13, 12, 0)), False)
sketch9.addConstraint(Sketcher.Constraint("Coincident", 0, 2, 1, 1))
sketch9.addConstraint(Sketcher.Constraint("Coincident", 1, 2, 2, 1))
sketch9.addConstraint(Sketcher.Constraint("Coincident", 2, 2, 3, 1))
sketch9.addConstraint(Sketcher.Constraint("Coincident", 3, 2, 0, 1))
sketch9.addConstraint(Sketcher.Constraint("Vertical", 0))
sketch9.addConstraint(Sketcher.Constraint("Horizontal", 1))
sketch9.addConstraint(Sketcher.Constraint("Vertical", 2))
sketch9.addConstraint(Sketcher.Constraint("Horizontal", 3))
sketch9.addConstraint(Sketcher.Constraint("DistanceX", 1, 1, 1, 2, Q("49 mm")))
sketch9.addConstraint(Sketcher.Constraint("DistanceY", 0, 2, 0, 1, Q("1 mm")))
sketch9.addConstraint(Sketcher.Constraint("DistanceX", -1, 1, 0, 2, Q("13 mm")))
sketch9.addConstraint(Sketcher.Constraint("DistanceY", -1, 1, 0, 2, Q("11 mm")))
sketch9.setExpression("Constraints[8]", "Params.sketch9_width")
sketch9.setExpression("Constraints[9]", "Params.sketch9_height")
pad4 = doc.addObject("PartDesign::Pad", "Pad003")
body.addObject(pad4)
pad4.Profile = sketch9
pad4.setExpression("Length", "Params.pad4_length")

# Sketch on XY plane
sketch10 = doc.addObject("Sketcher::SketchObject", "Sketch009")
body.addObject(sketch10)
sketch10.AttachmentSupport = (doc.XY_Plane, [""])
sketch10.MapMode = "FlatFace"
sketch10.AttachmentOffset = App.Placement(App.Vector(0, 0, 20), App.Rotation())
sketch10.addGeometry(Part.Circle(App.Vector(18, 7, 0), App.Vector(0, 0, 1), 2.2), False)
sketch10.addGeometry(Part.Circle(App.Vector(28, 68, 0), App.Vector(0, 0, 1), 2.2), False)
sketch10.addGeometry(Part.Circle(App.Vector(5, 37.5, 0), App.Vector(0, 0, 1), 1.2), False)
sketch10.addGeometry(Part.Circle(App.Vector(38, 7, 0), App.Vector(0, 0, 1), 2.2), False)
sketch10.addConstraint(Sketcher.Constraint("Equal", 0, 1))
sketch10.addConstraint(Sketcher.Constraint("Equal", 1, 3))
sketch10.addConstraint(Sketcher.Constraint("Horizontal", 0, 3, 3, 3))
sketch10.addConstraint(Sketcher.Constraint("Diameter", 0, Q("4.5 mm")))
sketch10.addConstraint(Sketcher.Constraint("Diameter", 2, Q("2.5 mm")))
sketch10.addConstraint(Sketcher.Constraint("DistanceX", -1, 1, 0, 3, Q("18 mm")))
sketch10.addConstraint(Sketcher.Constraint("DistanceY", -1, 1, 0, 3, Q("7 mm")))
sketch10.addConstraint(Sketcher.Constraint("DistanceX", -1, 1, 1, 3, Q("28 mm")))
sketch10.addConstraint(Sketcher.Constraint("DistanceY", -1, 1, 1, 3, Q("68 mm")))
sketch10.addConstraint(Sketcher.Constraint("DistanceX", -1, 1, 2, 3, Q("5 mm")))
sketch10.addConstraint(Sketcher.Constraint("DistanceX", -1, 1, 3, 3, Q("38 mm")))
sketch10.addConstraint(Sketcher.Constraint("DistanceY", -1, 1, 2, 3, Q("37.5 mm")))
sketch10.setExpression("Constraints[3]", "Params.sketch10_diameter")
sketch10.setExpression("Constraints[4]", "Params.sketch10_diameter2")
pocket6 = doc.addObject("PartDesign::Pocket", "Pocket005")
body.addObject(pocket6)
pocket6.Profile = sketch10
pocket6.setExpression("Length", "Params.pocket6_length")

# Sketch on XZ plane
sketch11 = doc.addObject("Sketcher::SketchObject", "Sketch010")
body.addObject(sketch11)
sketch11.AttachmentSupport = (doc.XZ_Plane, [""])
sketch11.MapMode = "FlatFace"
sketch11.addGeometry(Part.LineSegment(App.Vector(27, 15, 0), App.Vector(27, 10, 0)), False)
sketch11.addGeometry(Part.LineSegment(App.Vector(27, 10, 0), App.Vector(33, 10, 0)), False)
sketch11.addGeometry(Part.LineSegment(App.Vector(33, 10, 0), App.Vector(33, 15, 0)), False)
sketch11.addGeometry(Part.LineSegment(App.Vector(33, 15, 0), App.Vector(27, 15, 0)), False)
sketch11.addConstraint(Sketcher.Constraint("Coincident", 0, 2, 1, 1))
sketch11.addConstraint(Sketcher.Constraint("Coincident", 1, 2, 2, 1))
sketch11.addConstraint(Sketcher.Constraint("Coincident", 2, 2, 3, 1))
sketch11.addConstraint(Sketcher.Constraint("Coincident", 3, 2, 0, 1))
sketch11.addConstraint(Sketcher.Constraint("Vertical", 0))
sketch11.addConstraint(Sketcher.Constraint("Horizontal", 1))
sketch11.addConstraint(Sketcher.Constraint("Vertical", 2))
sketch11.addConstraint(Sketcher.Constraint("Horizontal", 3))
sketch11.addConstraint(Sketcher.Constraint("Equal", 3, 0))
sketch11.addConstraint(Sketcher.Constraint("DistanceY", -1, 1, 2, 2, Q("15 mm")))
sketch11.addConstraint(Sketcher.Constraint("DistanceX", 1, 1, 1, 2, Q("5.25 mm")))
sketch11.addConstraint(Sketcher.Constraint("DistanceX", -1, 1, 0, 2, Q("27.375 mm")))
sketch11.setExpression("Constraints[10]", "Params.sketch11_width")
pocket7 = doc.addObject("PartDesign::Pocket", "Pocket006")
body.addObject(pocket7)
pocket7.Profile = sketch11
pocket7.setExpression("Length", "Params.pocket7_length")

doc.recompute()
